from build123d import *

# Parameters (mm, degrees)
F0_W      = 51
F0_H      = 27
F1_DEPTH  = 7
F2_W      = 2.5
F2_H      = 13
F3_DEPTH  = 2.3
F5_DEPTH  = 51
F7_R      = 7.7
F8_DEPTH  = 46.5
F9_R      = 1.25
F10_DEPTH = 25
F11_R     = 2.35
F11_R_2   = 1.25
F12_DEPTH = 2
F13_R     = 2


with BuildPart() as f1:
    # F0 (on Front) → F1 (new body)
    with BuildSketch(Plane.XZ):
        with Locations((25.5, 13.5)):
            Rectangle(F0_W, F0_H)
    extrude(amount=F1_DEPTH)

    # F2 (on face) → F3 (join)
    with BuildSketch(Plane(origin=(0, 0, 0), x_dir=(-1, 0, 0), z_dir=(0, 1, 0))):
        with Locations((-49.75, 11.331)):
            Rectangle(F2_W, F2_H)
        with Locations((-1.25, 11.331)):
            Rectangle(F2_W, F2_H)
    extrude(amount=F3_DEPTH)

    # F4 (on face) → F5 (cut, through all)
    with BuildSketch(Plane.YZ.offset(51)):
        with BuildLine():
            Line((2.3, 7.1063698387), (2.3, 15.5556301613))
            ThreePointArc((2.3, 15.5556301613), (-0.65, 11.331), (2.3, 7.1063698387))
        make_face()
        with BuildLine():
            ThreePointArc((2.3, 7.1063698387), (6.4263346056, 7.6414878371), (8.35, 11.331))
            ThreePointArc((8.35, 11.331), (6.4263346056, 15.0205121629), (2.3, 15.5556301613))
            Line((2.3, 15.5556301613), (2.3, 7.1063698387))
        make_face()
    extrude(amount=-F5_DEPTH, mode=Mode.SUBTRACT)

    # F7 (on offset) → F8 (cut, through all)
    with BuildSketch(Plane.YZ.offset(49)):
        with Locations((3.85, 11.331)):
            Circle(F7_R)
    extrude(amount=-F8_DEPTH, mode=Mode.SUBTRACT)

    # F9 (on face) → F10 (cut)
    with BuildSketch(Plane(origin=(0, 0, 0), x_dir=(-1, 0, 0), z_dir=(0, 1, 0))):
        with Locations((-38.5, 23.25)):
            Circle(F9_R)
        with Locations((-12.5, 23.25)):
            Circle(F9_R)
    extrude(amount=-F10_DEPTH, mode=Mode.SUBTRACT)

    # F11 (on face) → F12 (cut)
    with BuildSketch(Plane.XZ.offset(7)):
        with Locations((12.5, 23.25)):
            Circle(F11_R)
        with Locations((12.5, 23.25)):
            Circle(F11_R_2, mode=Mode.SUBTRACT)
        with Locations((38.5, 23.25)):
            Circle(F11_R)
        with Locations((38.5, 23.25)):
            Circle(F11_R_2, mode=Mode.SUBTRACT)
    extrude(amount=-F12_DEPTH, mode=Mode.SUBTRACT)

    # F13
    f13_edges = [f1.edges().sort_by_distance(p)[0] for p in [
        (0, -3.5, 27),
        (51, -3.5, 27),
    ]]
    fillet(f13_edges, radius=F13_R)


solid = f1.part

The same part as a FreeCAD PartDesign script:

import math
import FreeCAD as App
import Part
import Sketcher
Q = App.Units.Quantity


def edges_at(feature, points):
    """Names of the edges that pass closest to the given points."""
    edges = feature.Shape.Edges
    near = lambda p: min(range(len(edges)), key=lambda i: edges[i].distToShape(Part.Vertex(*p))[0])
    return sorted({f"Edge{near(p) + 1}" for p in points})


def add_polygon(sketch, points):
    """Adds a closed chain of lines whose ends are joined by coincident constraints."""
    first, n = sketch.GeometryCount, len(points)
    for a, b in zip(points, points[1:] + points[:1]):
        sketch.addGeometry(Part.LineSegment(App.Vector(*a, 0), App.Vector(*b, 0)), False)
    for i in range(n):
        sketch.addConstraint(Sketcher.Constraint("Coincident", first + i, 2, first + (i + 1) % n, 1))

doc = App.newDocument("Part")
body = doc.addObject("PartDesign::Body", "Body")

# Sketch on XZ plane
sketch1 = body.newObject("Sketcher::SketchObject", "Sketch")
sketch1.AttachmentSupport = (doc.getObject("XZ_Plane"), [""])
sketch1.MapMode = "FlatFace"
add_polygon(sketch1, [(0, 27), (0, 0), (51, 0), (51, 27)])  # lines 0-3
sketch1.addConstraint(Sketcher.Constraint("Vertical", 0))
sketch1.addConstraint(Sketcher.Constraint("Horizontal", 1))
sketch1.addConstraint(Sketcher.Constraint("Vertical", 2))
sketch1.addConstraint(Sketcher.Constraint("Horizontal", 3))
sketch1.addConstraint(Sketcher.Constraint("Coincident", 0, 2, -1, 1))
sketch1.addConstraint(Sketcher.Constraint("DistanceX", 1, 1, 1, 2, Q("51 mm")))
sketch1.addConstraint(Sketcher.Constraint("DistanceY", 0, 2, 0, 1, Q("27 mm")))
pad1 = body.newObject("PartDesign::Pad", "Pad")
pad1.Profile = sketch1
pad1.Length = 7

# Sketch on XZ plane
sketch2 = body.newObject("Sketcher::SketchObject", "Sketch001")
sketch2.AttachmentSupport = (doc.getObject("XZ_Plane"), [""])
sketch2.MapMode = "FlatFace"
add_polygon(sketch2, [(51, 17.831), (51, 4.831), (48.5, 4.831), (48.5, 17.831)])  # lines 0-3
add_polygon(sketch2, [(2.5, 17.831), (2.5, 4.831), (0, 4.831), (0, 17.831)])  # lines 4-7
sketch2.addConstraint(Sketcher.Constraint("Vertical", 0))
sketch2.addConstraint(Sketcher.Constraint("Horizontal", 1))
sketch2.addConstraint(Sketcher.Constraint("Vertical", 2))
sketch2.addConstraint(Sketcher.Constraint("Horizontal", 3))
sketch2.addConstraint(Sketcher.Constraint("Vertical", 4))
sketch2.addConstraint(Sketcher.Constraint("Horizontal", 5))
sketch2.addConstraint(Sketcher.Constraint("Vertical", 6))
sketch2.addConstraint(Sketcher.Constraint("Horizontal", 7))
sketch2.addConstraint(Sketcher.Constraint("PointOnObject", 5, 2, -2))
sketch2.addConstraint(Sketcher.Constraint("Horizontal", 1, 2, 4, 2))
sketch2.addConstraint(Sketcher.Constraint("Horizontal", 3, 2, 6, 2))
sketch2.addConstraint(Sketcher.Constraint("Equal", 3, 5))
sketch2.addConstraint(Sketcher.Constraint("DistanceY", 0, 2, 0, 1, Q("13 mm")))
sketch2.addConstraint(Sketcher.Constraint("DistanceX", 1, 2, 1, 1, Q("2.5 mm")))
sketch2.addConstraint(Sketcher.Constraint("DistanceX", -1, 1, 0, 2, Q("51 mm")))
sketch2.addConstraint(Sketcher.Constraint("DistanceY", -1, 1, 0, 2, Q("4.831 mm")))
pad2 = body.newObject("PartDesign::Pad", "Pad001")
pad2.Profile = sketch2
pad2.Length = 2.3
pad2.Reversed = True

# Sketch on YZ plane
sketch3 = body.newObject("Sketcher::SketchObject", "Sketch002")
sketch3.AttachmentSupport = (doc.getObject("YZ_Plane"), [""])
sketch3.MapMode = "FlatFace"
sketch3.AttachmentOffset = App.Placement(App.Vector(0, 0, 51), App.Rotation())
sketch3.addGeometry(Part.ArcOfCircle(Part.Circle(App.Vector(3.85, 11.331, 0), App.Vector(0, 0, 1), 4.5), math.radians(110.147886), math.radians(249.852114)), False)
sketch3.addGeometry(Part.ArcOfCircle(Part.Circle(App.Vector(3.85, 11.331, 0), App.Vector(0, 0, 1), 4.5), math.radians(-110.147886), math.radians(0)), False)
sketch3.addGeometry(Part.ArcOfCircle(Part.Circle(App.Vector(3.85, 11.331, 0), App.Vector(0, 0, 1), 4.5), math.radians(0), math.radians(110.147886)), False)
sketch3.addConstraint(Sketcher.Constraint("Tangent", 0, 2, 1, 1))
sketch3.addConstraint(Sketcher.Constraint("Tangent", 1, 2, 2, 1))
sketch3.addConstraint(Sketcher.Constraint("Tangent", 2, 2, 0, 1))
sketch3.addConstraint(Sketcher.Constraint("Horizontal", 2, 3, 1, 2))
sketch3.addConstraint(Sketcher.Constraint("Vertical", 0, 2, 2, 2))
sketch3.addConstraint(Sketcher.Constraint("Radius", 0, Q("4.5 mm")))
sketch3.addConstraint(Sketcher.Constraint("DistanceX", -1, 1, 0, 2, Q("2.3 mm")))
sketch3.addConstraint(Sketcher.Constraint("DistanceX", -1, 1, 0, 3, Q("3.85 mm")))
sketch3.addConstraint(Sketcher.Constraint("DistanceY", -1, 1, 0, 3, Q("11.331 mm")))
pocket1 = body.newObject("PartDesign::Pocket", "Pocket")
pocket1.Profile = sketch3
pocket1.Type = "ThroughAll"

# Sketch on YZ plane
sketch4 = body.newObject("Sketcher::SketchObject", "Sketch003")
sketch4.AttachmentSupport = (doc.getObject("YZ_Plane"), [""])
sketch4.MapMode = "FlatFace"
sketch4.AttachmentOffset = App.Placement(App.Vector(0, 0, 49), App.Rotation())
sketch4.addGeometry(Part.Circle(App.Vector(3.85, 11.331, 0), App.Vector(0, 0, 1), 7.7), False)
sketch4.addConstraint(Sketcher.Constraint("Diameter", 0, Q("15.4 mm")))
sketch4.addConstraint(Sketcher.Constraint("DistanceX", -1, 1, 0, 3, Q("3.85 mm")))
sketch4.addConstraint(Sketcher.Constraint("DistanceY", -1, 1, 0, 3, Q("11.331 mm")))
pocket2 = body.newObject("PartDesign::Pocket", "Pocket001")
pocket2.Profile = sketch4
pocket2.Length = 46.5

# Sketch on XZ plane
sketch5 = body.newObject("Sketcher::SketchObject", "Sketch004")
sketch5.AttachmentSupport = (doc.getObject("XZ_Plane"), [""])
sketch5.MapMode = "FlatFace"
sketch5.addGeometry(Part.Circle(App.Vector(38.5, 23.25, 0), App.Vector(0, 0, 1), 1.25), False)
sketch5.addGeometry(Part.Circle(App.Vector(12.5, 23.25, 0), App.Vector(0, 0, 1), 1.25), False)
sketch5.addConstraint(Sketcher.Constraint("Equal", 0, 1))
sketch5.addConstraint(Sketcher.Constraint("Horizontal", 0, 3, 1, 3))
sketch5.addConstraint(Sketcher.Constraint("Diameter", 0, Q("2.5 mm")))
sketch5.addConstraint(Sketcher.Constraint("DistanceX", 1, 3, 0, 3, Q("26 mm")))
sketch5.addConstraint(Sketcher.Constraint("DistanceX", -1, 1, 0, 3, Q("38.5 mm")))
sketch5.addConstraint(Sketcher.Constraint("DistanceY", -1, 1, 0, 3, Q("23.25 mm")))
pocket3 = body.newObject("PartDesign::Pocket", "Pocket002")
pocket3.Profile = sketch5
pocket3.Length = 25
pocket3.Reversed = True

# Sketch on XZ plane
sketch6 = body.newObject("Sketcher::SketchObject", "Sketch005")
sketch6.AttachmentSupport = (doc.getObject("XZ_Plane"), [""])
sketch6.MapMode = "FlatFace"
sketch6.AttachmentOffset = App.Placement(App.Vector(0, 0, 7), App.Rotation())
sketch6.addGeometry(Part.Circle(App.Vector(12.5, 23.25, 0), App.Vector(0, 0, 1), 2.35), False)
sketch6.addGeometry(Part.Circle(App.Vector(12.5, 23.25, 0), App.Vector(0, 0, 1), 1.25), False)
sketch6.addGeometry(Part.Circle(App.Vector(38.5, 23.25, 0), App.Vector(0, 0, 1), 2.35), False)
sketch6.addGeometry(Part.Circle(App.Vector(38.5, 23.25, 0), App.Vector(0, 0, 1), 1.25), False)
sketch6.addConstraint(Sketcher.Constraint("Coincident", 1, 3, 0, 3))
sketch6.addConstraint(Sketcher.Constraint("Coincident", 3, 3, 2, 3))
sketch6.addConstraint(Sketcher.Constraint("Equal", 0, 2))
sketch6.addConstraint(Sketcher.Constraint("Equal", 1, 3))
sketch6.addConstraint(Sketcher.Constraint("Horizontal", 1, 3, 2, 3))
sketch6.addConstraint(Sketcher.Constraint("Diameter", 0, Q("4.7 mm")))
sketch6.addConstraint(Sketcher.Constraint("Diameter", 1, Q("2.5 mm")))
sketch6.addConstraint(Sketcher.Constraint("DistanceX", 0, 3, 2, 3, Q("26 mm")))
sketch6.addConstraint(Sketcher.Constraint("DistanceX", -1, 1, 0, 3, Q("12.5 mm")))
sketch6.addConstraint(Sketcher.Constraint("DistanceY", -1, 1, 0, 3, Q("23.25 mm")))
pocket4 = body.newObject("PartDesign::Pocket", "Pocket003")
pocket4.Profile = sketch6
pocket4.Length = 2
doc.recompute()

fillet = body.newObject("PartDesign::Fillet", "Fillet")
fillet.Base = (pocket4, edges_at(pocket4, [(0, -3.5, 27), (51, -3.5, 27)]))
fillet.Radius = 2

doc.recompute()
